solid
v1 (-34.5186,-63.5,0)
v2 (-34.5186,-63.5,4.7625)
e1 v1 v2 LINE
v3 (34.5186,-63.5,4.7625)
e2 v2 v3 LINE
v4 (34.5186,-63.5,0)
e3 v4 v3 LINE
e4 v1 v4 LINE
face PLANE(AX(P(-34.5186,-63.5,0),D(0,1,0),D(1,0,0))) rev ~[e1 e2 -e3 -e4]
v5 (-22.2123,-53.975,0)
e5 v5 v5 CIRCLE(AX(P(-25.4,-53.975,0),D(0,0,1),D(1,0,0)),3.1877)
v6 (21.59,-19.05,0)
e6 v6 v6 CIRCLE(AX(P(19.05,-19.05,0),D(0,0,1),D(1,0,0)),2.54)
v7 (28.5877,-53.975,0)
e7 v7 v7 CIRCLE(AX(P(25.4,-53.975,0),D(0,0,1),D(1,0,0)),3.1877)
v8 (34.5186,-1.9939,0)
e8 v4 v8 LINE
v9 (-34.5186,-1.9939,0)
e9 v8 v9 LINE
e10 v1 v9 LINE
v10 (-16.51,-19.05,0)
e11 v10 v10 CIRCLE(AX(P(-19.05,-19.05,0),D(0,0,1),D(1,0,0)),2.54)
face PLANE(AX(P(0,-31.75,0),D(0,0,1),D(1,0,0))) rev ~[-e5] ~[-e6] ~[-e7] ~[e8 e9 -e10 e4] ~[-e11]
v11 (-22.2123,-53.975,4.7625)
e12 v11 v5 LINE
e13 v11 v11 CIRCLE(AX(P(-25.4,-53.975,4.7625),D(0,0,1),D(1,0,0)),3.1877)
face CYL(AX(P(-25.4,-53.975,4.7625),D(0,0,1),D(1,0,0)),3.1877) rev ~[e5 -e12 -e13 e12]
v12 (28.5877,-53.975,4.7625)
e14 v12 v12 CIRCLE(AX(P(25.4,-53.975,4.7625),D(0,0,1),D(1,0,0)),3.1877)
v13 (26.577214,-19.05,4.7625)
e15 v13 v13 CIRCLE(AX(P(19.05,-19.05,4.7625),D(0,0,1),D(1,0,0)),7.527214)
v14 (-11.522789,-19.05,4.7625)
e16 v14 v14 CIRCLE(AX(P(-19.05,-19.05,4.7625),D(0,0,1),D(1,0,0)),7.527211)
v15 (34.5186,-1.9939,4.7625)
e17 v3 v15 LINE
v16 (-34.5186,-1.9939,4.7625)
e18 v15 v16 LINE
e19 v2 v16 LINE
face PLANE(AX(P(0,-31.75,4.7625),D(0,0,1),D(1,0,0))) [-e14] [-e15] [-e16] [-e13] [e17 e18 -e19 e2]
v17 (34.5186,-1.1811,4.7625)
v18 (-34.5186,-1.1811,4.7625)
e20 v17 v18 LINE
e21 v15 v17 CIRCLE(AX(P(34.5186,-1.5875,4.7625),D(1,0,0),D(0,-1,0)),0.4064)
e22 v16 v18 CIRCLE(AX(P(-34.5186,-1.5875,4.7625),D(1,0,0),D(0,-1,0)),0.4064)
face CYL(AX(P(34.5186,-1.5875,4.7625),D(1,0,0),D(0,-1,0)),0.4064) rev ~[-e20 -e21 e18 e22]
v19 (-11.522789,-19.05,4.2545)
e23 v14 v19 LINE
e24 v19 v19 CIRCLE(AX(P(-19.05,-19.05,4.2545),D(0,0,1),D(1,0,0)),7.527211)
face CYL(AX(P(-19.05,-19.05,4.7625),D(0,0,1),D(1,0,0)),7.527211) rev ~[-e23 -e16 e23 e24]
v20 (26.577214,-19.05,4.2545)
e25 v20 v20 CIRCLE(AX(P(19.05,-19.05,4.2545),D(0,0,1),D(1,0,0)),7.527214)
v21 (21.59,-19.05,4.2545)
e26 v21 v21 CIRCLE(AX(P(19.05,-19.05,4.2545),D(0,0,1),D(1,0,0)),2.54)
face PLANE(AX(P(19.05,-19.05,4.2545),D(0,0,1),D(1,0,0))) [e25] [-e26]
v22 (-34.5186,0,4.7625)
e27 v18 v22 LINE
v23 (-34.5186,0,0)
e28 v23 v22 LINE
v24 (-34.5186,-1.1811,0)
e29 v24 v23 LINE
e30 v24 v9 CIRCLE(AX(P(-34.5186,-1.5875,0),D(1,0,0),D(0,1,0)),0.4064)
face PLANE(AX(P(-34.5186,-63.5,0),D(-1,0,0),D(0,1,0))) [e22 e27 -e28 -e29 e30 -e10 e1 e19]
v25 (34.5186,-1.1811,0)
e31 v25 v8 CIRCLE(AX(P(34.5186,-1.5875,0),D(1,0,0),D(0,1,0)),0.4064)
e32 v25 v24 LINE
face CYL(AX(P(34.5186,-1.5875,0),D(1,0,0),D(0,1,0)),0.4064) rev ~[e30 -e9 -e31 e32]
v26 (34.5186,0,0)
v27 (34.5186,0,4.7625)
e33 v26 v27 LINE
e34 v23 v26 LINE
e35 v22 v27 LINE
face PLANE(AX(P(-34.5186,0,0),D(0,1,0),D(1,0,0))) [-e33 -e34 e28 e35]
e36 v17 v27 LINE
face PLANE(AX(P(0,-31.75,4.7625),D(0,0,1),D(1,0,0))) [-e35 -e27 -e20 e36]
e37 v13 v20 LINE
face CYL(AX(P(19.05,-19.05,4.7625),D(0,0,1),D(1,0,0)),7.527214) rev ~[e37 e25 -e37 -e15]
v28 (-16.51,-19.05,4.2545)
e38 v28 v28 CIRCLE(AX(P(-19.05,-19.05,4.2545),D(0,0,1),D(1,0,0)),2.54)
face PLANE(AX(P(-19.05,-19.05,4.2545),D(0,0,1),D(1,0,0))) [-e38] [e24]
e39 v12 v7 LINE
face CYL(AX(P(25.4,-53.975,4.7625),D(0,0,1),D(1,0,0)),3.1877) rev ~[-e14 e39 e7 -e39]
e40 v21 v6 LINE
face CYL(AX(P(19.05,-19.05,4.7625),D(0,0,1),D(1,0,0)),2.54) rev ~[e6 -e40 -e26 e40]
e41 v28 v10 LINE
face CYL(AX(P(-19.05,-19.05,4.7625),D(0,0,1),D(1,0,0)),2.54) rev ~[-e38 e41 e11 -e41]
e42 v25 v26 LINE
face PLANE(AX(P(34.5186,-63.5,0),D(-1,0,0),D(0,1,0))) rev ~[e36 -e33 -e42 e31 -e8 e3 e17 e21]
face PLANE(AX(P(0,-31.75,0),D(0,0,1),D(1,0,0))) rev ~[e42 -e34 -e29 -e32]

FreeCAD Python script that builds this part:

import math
import FreeCAD as App
import Part
import Sketcher
Q = App.Units.Quantity

doc = App.newDocument("Part")
body = doc.addObject("PartDesign::Body", "Body")

# Sketch on XY plane
sketch1 = body.newObject("Sketcher::SketchObject", "Sketch")
sketch1.AttachmentSupport = (doc.getObject("XY_Plane"), [""])
sketch1.MapMode = "FlatFace"
sketch1.addGeometry(Part.LineSegment(App.Vector(-35, 0, 0), App.Vector(-35, -64, 0)), False)
sketch1.addGeometry(Part.LineSegment(App.Vector(-35, -64, 0), App.Vector(35, -64, 0)), False)
sketch1.addGeometry(Part.LineSegment(App.Vector(35, -64, 0), App.Vector(35, 0, 0)), False)
sketch1.addGeometry(Part.LineSegment(App.Vector(35, 0, 0), App.Vector(-35, 0, 0)), False)
sketch1.addConstraint(Sketcher.Constraint("Coincident", 0, 2, 1, 1))
sketch1.addConstraint(Sketcher.Constraint("Coincident", 1, 2, 2, 1))
sketch1.addConstraint(Sketcher.Constraint("Coincident", 2, 2, 3, 1))
sketch1.addConstraint(Sketcher.Constraint("Coincident", 3, 2, 0, 1))
sketch1.addConstraint(Sketcher.Constraint("Vertical", 0))
sketch1.addConstraint(Sketcher.Constraint("Horizontal", 1))
sketch1.addConstraint(Sketcher.Constraint("Vertical", 2))
sketch1.addConstraint(Sketcher.Constraint("Horizontal", 3))
sketch1.addConstraint(Sketcher.Constraint("Symmetric", 2, 2, 3, 2, -1, 1))
sketch1.addConstraint(Sketcher.Constraint("DistanceY", 0, 2, 0, 1, Q("2.5 in")))
sketch1.addConstraint(Sketcher.Constraint("DistanceX", 1, 1, 1, 2, Q("2.718 in")))
pad1 = body.newObject("PartDesign::Pad", "Pad")
pad1.Profile = sketch1
pad1.Length = Q("0.1875 in")

# Sketch on XY plane
sketch2 = body.newObject("Sketcher::SketchObject", "Sketch001")
sketch2.AttachmentSupport = (doc.getObject("XY_Plane"), [""])
sketch2.MapMode = "FlatFace"
sketch2.AttachmentOffset = App.Placement(App.Vector(0, 0, 0.1875 * 25.4), App.Rotation())
sketch2.addGeometry(Part.Circle(App.Vector(25.4, -54, 0), App.Vector(0, 0, 1), 3.2), False)
sketch2.addGeometry(Part.Circle(App.Vector(-25.4, -54, 0), App.Vector(0, 0, 1), 3.2), False)
sketch2.addConstraint(Sketcher.Constraint("Equal", 0, 1))
sketch2.addConstraint(Sketcher.Constraint("Symmetric", 0, 3, 1, 3, -2))
sketch2.addConstraint(Sketcher.Constraint("Diameter", 0, Q("0.251 in")))
sketch2.addConstraint(Sketcher.Constraint("DistanceX", -1, 1, 0, 3, Q("1 in")))
sketch2.addConstraint(Sketcher.Constraint("DistanceY", 0, 3, -1, 1, Q("2.125 in")))
pocket1 = body.newObject("PartDesign::Pocket", "Pocket")
pocket1.Profile = sketch2
pocket1.Type = "ThroughAll"

# Sketch on XY plane
sketch3 = body.newObject("Sketcher::SketchObject", "Sketch002")
sketch3.AttachmentSupport = (doc.getObject("XY_Plane"), [""])
sketch3.MapMode = "FlatFace"
sketch3.AttachmentOffset = App.Placement(App.Vector(0, 0, 0.1875 * 25.4), App.Rotation())
sketch3.addGeometry(Part.Circle(App.Vector(-19.1, -19.1, 0), App.Vector(0, 0, 1), 2.5), False)
sketch3.addGeometry(Part.Circle(App.Vector(19.1, -19.1, 0), App.Vector(0, 0, 1), 2.5), False)
sketch3.addConstraint(Sketcher.Constraint("Equal", 0, 1))
sketch3.addConstraint(Sketcher.Constraint("Symmetric", 0, 3, 1, 3, -2))
sketch3.addConstraint(Sketcher.Constraint("Diameter", 0, Q("0.2 in")))
sketch3.addConstraint(Sketcher.Constraint("DistanceX", 0, 3, 1, 3, Q("1.5 in")))
sketch3.addConstraint(Sketcher.Constraint("DistanceY", 0, 3, -1, 1, Q("0.75 in")))
pocket2 = body.newObject("PartDesign::Pocket", "Pocket001")
pocket2.Profile = sketch3
pocket2.Type = "ThroughAll"

# Sketch on XY plane
sketch4 = body.newObject("Sketcher::SketchObject", "Sketch003")
sketch4.AttachmentSupport = (doc.getObject("XY_Plane"), [""])
sketch4.MapMode = "FlatFace"
sketch4.AttachmentOffset = App.Placement(App.Vector(0, 0, 0.1875 * 25.4), App.Rotation())
sketch4.addGeometry(Part.Circle(App.Vector(-19.1, -19.1, 0), App.Vector(0, 0, 1), 7.5), False)
sketch4.addGeometry(Part.Circle(App.Vector(-19.1, -19.1, 0), App.Vector(0, 0, 1), 2.5), False)
sketch4.addGeometry(Part.Circle(App.Vector(19.1, -19.1, 0), App.Vector(0, 0, 1), 7.5), False)
sketch4.addGeometry(Part.Circle(App.Vector(19.1, -19.1, 0), App.Vector(0, 0, 1), 2.5), False)
sketch4.addConstraint(Sketcher.Constraint("Coincident", 1, 3, 0, 3))
sketch4.addConstraint(Sketcher.Constraint("Coincident", 3, 3, 2, 3))
sketch4.addConstraint(Sketcher.Constraint("Equal", 1, 3))
sketch4.addConstraint(Sketcher.Constraint("Symmetric", 0, 3, 2, 3, -2))
sketch4.addConstraint(Sketcher.Constraint("Diameter", 1, Q("0.2 in")))
sketch4.addConstraint(Sketcher.Constraint("DistanceX", 0, 3, 2, 3, Q("1.5 in")))
sketch4.addConstraint(Sketcher.Constraint("DistanceY", 0, 3, -1, 1, Q("0.75 in")))
sketch4.addConstraint(Sketcher.Constraint("Diameter", 0, Q("15.054423 mm")))
sketch4.addConstraint(Sketcher.Constraint("Diameter", 2, Q("15.054428 mm")))
pocket3 = body.newObject("PartDesign::Pocket", "Pocket002")
pocket3.Profile = sketch4
pocket3.Length = Q("0.02 in")

# Sketch on YZ plane
sketch5 = body.newObject("Sketcher::SketchObject", "Sketch004")
sketch5.AttachmentSupport = (doc.getObject("YZ_Plane"), [""])
sketch5.MapMode = "FlatFace"
sketch5.AttachmentOffset = App.Placement(App.Vector(0, 0, 1.359 * 25.4), App.Rotation())
sketch5.addGeometry(Part.ArcOfCircle(Part.Circle(App.Vector(-1.59, 4.76, 0), App.Vector(0, 0, 1), 0.41), math.radians(180), math.radians(360)), False)
sketch5.addGeometry(Part.LineSegment(App.Vector(-1.18, 4.76, 0), App.Vector(-1.99, 4.76, 0)), False)
sketch5.addGeometry(Part.LineSegment(App.Vector(-1.99, 0, 0), App.Vector(-1.18, 0, 0)), False)
sketch5.addGeometry(Part.ArcOfCircle(Part.Circle(App.Vector(-1.59, 0, 0), App.Vector(0, 0, 1), 0.41), math.radians(0), math.radians(180)), False)
sketch5.addConstraint(Sketcher.Constraint("Coincident", 0, 1, 1, 2))
sketch5.addConstraint(Sketcher.Constraint("Coincident", 1, 1, 0, 2))
sketch5.addConstraint(Sketcher.Constraint("Coincident", 2, 1, 3, 2))
sketch5.addConstraint(Sketcher.Constraint("Coincident", 3, 1, 2, 2))
sketch5.addConstraint(Sketcher.Constraint("Horizontal", 1))
sketch5.addConstraint(Sketcher.Constraint("Horizontal", 2))
sketch5.addConstraint(Sketcher.Constraint("Equal", 0, 3))
sketch5.addConstraint(Sketcher.Constraint("PointOnObject", 3, 3, -1))
sketch5.addConstraint(Sketcher.Constraint("PointOnObject", 2, 1, -1))
sketch5.addConstraint(Sketcher.Constraint("Vertical", 0, 3, 3, 3))
sketch5.addConstraint(Sketcher.Constraint("Radius", 0, Q("0.016 in")))
sketch5.addConstraint(Sketcher.Constraint("DistanceX", 0, 3, -1, 1, Q("0.0625 in")))
sketch5.addConstraint(Sketcher.Constraint("DistanceY", -1, 1, 0, 3, Q("0.1875 in")))
sketch5.addConstraint(Sketcher.Constraint("DistanceY", -1, 1, 0, 1, Q("0.1875 in")))
pocket4 = body.newObject("PartDesign::Pocket", "Pocket003")
pocket4.Profile = sketch5
pocket4.Type = "ThroughAll"

doc.recompute()
